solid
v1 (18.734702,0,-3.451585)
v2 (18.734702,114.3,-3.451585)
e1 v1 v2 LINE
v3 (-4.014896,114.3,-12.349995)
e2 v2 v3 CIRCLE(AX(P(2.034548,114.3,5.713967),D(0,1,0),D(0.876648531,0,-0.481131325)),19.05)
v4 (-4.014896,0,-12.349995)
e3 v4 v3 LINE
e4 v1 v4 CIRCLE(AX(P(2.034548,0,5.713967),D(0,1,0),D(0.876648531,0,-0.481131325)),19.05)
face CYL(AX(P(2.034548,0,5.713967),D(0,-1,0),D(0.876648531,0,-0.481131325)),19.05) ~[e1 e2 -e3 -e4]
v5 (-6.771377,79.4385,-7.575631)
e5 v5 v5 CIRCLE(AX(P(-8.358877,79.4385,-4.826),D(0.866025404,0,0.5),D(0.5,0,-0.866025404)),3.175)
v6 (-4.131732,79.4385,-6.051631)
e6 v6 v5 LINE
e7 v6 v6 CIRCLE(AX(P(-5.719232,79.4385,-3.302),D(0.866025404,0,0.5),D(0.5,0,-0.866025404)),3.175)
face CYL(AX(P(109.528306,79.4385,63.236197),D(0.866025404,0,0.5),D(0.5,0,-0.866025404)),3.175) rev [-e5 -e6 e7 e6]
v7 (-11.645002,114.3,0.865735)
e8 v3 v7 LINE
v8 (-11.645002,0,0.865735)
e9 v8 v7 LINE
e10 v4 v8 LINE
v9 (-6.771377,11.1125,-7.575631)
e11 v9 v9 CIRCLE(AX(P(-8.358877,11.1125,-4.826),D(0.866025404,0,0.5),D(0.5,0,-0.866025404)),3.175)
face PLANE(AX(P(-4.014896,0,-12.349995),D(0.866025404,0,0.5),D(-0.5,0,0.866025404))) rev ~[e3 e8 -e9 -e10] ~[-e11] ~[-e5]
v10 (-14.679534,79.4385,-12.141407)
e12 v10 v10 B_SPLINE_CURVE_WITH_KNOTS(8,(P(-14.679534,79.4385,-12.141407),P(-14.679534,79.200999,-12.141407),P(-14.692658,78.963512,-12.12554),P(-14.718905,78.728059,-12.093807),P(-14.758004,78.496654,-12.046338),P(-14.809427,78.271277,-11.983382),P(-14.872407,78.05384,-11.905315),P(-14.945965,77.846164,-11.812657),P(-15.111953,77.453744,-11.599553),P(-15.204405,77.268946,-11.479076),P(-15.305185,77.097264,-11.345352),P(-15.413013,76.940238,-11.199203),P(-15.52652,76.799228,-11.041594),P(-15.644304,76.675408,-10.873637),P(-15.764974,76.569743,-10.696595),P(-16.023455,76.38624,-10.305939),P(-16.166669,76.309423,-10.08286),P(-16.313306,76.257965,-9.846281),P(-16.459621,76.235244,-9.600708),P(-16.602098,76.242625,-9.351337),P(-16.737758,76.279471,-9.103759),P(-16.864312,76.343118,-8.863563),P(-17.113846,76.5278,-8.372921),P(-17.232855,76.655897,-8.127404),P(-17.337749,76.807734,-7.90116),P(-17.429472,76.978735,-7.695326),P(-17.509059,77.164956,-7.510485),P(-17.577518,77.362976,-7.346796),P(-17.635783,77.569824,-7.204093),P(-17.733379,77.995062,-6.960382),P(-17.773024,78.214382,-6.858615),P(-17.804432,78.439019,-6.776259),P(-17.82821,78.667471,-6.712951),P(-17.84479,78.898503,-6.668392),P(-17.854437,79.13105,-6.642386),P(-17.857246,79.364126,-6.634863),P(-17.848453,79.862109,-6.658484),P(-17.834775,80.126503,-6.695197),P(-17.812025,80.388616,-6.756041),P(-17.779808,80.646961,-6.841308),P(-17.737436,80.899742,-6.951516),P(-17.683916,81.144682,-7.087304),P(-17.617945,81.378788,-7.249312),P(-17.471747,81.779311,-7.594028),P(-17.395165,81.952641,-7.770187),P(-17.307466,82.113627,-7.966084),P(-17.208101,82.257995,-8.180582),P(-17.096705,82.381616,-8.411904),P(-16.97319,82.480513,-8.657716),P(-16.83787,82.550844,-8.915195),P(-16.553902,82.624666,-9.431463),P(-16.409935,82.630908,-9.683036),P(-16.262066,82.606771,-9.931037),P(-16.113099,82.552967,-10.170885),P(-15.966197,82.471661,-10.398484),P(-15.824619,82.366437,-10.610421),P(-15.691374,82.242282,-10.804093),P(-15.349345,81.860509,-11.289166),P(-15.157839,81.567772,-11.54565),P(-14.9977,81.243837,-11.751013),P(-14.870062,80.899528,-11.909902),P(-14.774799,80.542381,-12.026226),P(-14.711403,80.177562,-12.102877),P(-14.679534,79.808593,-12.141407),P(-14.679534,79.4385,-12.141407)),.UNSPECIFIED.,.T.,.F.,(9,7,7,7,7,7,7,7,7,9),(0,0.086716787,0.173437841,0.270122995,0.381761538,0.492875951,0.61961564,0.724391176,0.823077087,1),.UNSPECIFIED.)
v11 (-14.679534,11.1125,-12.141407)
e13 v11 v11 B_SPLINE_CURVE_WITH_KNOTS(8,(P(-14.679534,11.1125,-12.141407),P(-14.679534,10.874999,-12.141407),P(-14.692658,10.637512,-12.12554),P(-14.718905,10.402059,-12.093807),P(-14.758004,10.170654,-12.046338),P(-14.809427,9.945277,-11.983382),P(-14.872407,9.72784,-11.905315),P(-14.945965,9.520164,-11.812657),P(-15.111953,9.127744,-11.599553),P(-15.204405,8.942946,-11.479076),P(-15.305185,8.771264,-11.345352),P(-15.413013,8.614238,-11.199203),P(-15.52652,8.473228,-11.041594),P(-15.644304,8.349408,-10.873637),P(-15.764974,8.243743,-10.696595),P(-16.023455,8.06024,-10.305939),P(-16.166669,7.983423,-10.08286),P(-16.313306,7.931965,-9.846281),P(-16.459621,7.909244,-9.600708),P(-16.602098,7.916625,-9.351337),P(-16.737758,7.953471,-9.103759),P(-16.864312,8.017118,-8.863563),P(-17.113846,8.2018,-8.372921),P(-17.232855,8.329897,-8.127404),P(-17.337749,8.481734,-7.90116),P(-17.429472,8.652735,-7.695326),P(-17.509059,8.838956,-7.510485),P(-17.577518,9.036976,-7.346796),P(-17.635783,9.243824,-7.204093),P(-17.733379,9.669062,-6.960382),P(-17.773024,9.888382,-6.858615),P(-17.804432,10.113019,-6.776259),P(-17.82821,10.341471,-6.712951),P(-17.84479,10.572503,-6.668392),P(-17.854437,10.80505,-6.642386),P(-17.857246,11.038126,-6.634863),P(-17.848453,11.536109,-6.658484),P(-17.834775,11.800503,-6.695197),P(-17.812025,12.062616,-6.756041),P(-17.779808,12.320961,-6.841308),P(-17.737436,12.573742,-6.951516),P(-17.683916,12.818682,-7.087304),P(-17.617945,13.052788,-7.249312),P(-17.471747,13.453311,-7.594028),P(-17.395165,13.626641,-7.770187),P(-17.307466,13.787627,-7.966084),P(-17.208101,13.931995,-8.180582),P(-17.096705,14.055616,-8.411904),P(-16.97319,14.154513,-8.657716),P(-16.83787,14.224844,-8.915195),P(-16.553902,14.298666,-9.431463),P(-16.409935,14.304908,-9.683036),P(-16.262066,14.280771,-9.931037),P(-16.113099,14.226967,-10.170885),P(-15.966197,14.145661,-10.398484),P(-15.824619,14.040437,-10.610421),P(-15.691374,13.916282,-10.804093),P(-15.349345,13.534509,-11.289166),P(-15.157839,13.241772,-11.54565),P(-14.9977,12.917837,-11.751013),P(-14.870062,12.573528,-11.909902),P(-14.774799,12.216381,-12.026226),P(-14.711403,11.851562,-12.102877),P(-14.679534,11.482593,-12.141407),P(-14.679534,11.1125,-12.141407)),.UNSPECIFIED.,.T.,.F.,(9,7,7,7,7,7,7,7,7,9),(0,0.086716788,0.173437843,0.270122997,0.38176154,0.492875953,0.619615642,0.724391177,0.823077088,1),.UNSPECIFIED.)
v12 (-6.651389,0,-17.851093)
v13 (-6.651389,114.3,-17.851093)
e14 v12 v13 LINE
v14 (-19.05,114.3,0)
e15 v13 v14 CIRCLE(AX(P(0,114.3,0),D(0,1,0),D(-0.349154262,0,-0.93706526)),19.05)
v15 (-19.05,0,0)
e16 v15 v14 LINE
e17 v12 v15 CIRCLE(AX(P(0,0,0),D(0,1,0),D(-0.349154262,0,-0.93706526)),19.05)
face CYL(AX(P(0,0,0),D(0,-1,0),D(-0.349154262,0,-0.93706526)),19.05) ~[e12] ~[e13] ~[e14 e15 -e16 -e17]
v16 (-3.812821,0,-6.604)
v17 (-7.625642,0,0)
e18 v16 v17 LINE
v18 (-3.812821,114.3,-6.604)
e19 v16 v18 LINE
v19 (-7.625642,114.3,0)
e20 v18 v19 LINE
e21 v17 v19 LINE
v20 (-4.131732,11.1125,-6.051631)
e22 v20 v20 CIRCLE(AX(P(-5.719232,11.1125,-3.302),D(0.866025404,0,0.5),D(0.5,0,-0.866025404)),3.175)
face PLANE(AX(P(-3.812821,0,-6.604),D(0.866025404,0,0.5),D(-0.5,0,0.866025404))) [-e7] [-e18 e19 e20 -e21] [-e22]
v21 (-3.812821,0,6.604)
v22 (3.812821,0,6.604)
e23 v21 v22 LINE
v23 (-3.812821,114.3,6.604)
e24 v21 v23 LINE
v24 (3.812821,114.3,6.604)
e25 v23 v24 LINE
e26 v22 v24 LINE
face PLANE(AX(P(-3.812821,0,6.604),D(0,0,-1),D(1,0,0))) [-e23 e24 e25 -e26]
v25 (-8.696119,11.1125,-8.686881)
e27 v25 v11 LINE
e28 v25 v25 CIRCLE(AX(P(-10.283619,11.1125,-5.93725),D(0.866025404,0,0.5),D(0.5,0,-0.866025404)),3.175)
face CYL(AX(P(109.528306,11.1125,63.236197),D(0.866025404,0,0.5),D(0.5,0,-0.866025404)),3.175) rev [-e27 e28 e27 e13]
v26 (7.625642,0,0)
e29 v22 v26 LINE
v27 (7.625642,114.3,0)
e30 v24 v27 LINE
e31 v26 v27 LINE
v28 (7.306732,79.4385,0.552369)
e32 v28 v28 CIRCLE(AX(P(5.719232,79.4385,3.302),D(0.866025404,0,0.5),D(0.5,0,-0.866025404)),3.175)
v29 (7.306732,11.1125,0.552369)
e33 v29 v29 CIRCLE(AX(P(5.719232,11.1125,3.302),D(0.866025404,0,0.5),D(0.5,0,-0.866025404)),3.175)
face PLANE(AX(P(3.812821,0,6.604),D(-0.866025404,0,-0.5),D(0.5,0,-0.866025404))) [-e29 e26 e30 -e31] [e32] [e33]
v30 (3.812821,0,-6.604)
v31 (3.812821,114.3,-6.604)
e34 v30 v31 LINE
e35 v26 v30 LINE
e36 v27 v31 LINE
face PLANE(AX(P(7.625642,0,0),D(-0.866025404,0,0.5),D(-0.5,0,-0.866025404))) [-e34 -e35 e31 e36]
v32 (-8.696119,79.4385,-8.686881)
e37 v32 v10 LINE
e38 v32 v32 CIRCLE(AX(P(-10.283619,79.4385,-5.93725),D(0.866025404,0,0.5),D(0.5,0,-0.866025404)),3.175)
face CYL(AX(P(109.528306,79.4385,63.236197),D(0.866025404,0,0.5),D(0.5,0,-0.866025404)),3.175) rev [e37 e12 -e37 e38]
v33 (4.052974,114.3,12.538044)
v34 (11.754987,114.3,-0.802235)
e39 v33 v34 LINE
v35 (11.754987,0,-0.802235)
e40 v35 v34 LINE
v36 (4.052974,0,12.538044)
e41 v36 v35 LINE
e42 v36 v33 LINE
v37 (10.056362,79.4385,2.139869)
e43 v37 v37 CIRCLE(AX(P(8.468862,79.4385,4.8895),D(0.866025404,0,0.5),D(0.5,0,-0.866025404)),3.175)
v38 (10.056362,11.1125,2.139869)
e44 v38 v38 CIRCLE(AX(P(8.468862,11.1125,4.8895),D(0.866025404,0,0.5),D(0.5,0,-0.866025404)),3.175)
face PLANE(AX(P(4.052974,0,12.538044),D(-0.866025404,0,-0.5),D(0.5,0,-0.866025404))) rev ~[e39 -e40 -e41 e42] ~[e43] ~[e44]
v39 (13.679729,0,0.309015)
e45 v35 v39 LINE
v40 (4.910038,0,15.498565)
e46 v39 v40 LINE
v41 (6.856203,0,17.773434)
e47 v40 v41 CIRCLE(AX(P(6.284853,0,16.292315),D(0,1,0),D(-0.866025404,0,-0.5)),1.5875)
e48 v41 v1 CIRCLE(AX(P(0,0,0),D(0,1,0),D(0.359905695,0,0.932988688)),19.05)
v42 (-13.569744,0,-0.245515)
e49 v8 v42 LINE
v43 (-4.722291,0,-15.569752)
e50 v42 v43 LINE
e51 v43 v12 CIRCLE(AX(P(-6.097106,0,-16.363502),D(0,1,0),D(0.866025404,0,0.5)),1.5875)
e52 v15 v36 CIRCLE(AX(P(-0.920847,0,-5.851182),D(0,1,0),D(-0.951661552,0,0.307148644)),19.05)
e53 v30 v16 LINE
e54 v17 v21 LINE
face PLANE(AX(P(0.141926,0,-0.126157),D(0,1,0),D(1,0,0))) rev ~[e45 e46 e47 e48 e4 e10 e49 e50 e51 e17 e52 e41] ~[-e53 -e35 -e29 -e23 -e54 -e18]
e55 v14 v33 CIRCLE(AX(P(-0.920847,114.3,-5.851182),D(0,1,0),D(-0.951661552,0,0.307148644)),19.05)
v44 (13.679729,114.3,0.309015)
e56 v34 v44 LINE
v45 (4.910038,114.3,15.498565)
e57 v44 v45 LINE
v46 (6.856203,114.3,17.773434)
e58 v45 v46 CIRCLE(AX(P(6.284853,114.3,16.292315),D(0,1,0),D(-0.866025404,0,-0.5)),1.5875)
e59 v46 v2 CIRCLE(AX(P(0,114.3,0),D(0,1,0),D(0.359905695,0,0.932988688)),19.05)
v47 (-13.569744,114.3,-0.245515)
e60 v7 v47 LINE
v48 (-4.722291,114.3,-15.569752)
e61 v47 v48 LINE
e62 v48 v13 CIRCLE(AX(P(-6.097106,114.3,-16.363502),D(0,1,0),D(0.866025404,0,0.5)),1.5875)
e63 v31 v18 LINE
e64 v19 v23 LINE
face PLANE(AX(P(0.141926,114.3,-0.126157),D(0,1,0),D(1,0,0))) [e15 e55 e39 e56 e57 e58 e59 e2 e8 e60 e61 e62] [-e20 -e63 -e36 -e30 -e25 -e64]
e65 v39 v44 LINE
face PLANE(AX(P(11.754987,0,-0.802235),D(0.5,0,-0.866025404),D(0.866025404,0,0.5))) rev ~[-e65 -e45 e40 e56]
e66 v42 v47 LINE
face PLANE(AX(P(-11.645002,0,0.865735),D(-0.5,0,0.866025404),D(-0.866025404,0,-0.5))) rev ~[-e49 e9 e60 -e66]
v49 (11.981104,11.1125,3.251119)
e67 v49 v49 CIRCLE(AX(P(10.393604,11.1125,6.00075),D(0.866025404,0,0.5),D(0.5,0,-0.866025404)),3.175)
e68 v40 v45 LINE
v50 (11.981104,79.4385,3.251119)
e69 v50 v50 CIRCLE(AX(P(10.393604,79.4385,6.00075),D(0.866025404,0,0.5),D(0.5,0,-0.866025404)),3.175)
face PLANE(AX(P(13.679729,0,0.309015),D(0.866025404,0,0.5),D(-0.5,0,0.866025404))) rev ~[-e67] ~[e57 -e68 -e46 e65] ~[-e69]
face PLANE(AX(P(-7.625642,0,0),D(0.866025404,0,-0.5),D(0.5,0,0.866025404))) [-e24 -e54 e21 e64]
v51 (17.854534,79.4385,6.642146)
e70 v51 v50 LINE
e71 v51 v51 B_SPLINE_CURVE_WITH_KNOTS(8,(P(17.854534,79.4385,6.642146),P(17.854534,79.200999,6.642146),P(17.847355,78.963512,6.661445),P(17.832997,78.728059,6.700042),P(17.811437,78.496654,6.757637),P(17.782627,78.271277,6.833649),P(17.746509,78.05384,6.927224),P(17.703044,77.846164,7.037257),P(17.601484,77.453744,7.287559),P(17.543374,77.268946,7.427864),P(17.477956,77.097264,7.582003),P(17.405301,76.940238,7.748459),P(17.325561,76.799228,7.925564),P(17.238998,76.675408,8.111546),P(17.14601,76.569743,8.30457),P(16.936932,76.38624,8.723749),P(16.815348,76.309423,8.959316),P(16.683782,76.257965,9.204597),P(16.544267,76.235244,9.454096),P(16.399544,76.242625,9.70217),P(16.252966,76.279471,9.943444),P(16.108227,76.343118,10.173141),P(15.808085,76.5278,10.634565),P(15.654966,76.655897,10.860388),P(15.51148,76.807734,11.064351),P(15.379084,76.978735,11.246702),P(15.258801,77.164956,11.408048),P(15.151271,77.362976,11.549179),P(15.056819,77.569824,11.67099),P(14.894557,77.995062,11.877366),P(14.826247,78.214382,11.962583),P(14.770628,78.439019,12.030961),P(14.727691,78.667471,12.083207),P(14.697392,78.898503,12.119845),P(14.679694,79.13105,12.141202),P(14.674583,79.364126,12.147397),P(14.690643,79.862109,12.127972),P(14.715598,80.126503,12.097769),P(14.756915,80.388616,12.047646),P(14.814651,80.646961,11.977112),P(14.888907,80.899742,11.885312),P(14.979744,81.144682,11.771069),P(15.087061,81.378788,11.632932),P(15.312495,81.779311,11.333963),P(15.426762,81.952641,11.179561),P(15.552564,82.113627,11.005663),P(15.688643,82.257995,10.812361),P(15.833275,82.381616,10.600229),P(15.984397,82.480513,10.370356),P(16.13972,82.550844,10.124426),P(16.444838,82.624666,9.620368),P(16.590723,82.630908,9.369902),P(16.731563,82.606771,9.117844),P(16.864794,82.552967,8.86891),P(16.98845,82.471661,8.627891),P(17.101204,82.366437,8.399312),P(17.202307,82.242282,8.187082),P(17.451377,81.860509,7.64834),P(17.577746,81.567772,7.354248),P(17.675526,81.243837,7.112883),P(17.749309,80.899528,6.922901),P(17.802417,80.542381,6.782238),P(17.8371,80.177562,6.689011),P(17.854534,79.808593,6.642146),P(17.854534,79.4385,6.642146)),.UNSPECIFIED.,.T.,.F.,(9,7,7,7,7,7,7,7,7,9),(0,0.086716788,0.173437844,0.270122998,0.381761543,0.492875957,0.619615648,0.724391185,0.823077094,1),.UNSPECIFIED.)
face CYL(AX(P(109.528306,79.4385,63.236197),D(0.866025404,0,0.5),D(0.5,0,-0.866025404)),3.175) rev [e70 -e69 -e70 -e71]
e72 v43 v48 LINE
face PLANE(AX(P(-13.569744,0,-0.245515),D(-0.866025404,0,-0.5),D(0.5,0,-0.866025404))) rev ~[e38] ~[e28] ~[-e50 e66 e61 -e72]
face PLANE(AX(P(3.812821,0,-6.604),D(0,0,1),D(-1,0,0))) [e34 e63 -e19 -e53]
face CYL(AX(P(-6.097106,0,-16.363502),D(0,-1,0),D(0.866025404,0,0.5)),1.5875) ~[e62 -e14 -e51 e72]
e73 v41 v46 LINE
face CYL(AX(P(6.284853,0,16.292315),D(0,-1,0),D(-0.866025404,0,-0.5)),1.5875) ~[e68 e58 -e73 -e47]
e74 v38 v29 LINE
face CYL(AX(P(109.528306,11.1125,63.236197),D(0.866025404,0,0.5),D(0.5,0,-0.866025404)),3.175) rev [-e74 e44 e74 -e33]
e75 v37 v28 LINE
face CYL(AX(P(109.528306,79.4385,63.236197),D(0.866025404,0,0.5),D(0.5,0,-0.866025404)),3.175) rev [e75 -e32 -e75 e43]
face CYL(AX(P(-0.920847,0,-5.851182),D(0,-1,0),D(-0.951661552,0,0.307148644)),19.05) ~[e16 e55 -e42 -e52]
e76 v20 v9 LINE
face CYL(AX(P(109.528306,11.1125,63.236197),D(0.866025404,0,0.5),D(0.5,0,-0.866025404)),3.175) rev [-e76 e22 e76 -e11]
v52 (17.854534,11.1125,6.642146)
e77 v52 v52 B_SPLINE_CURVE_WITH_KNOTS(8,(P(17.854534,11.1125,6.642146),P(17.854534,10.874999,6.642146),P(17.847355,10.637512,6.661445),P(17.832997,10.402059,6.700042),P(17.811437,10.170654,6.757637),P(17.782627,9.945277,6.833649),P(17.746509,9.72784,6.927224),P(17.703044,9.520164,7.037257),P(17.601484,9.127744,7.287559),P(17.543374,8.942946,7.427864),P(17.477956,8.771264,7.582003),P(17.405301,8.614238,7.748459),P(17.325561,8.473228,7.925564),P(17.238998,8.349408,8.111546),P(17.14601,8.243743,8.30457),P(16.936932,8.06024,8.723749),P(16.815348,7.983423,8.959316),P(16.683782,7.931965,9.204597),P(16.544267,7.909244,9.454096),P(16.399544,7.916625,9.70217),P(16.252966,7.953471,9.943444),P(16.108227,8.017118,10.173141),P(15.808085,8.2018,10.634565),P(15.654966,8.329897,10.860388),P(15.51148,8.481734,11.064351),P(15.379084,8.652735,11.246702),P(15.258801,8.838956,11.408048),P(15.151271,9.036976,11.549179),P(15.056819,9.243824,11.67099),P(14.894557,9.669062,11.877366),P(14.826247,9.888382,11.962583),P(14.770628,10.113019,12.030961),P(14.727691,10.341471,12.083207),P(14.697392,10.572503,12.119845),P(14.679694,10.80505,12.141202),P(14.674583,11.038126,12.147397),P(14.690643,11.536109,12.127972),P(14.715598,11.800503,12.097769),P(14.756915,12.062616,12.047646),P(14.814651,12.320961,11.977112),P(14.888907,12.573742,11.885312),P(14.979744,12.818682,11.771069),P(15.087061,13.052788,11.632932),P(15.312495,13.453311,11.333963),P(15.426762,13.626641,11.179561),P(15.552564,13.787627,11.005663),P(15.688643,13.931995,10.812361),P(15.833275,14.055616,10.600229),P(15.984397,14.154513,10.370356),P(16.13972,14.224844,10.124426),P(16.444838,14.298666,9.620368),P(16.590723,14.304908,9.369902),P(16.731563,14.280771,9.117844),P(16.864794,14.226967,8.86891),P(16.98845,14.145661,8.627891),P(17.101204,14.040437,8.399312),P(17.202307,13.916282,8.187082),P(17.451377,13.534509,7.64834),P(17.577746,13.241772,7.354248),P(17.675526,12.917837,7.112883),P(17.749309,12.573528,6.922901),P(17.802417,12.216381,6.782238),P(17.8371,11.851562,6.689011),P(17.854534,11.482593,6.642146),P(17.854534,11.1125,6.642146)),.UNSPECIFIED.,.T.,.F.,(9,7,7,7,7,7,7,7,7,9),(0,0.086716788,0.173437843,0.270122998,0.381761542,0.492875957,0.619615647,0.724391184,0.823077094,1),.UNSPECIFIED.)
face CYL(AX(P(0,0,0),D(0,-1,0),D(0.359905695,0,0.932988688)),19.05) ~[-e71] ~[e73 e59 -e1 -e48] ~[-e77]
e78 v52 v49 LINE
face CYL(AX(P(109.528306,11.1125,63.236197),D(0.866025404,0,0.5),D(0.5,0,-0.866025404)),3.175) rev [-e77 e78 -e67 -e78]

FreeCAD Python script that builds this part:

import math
import FreeCAD as App
import Part
import Sketcher
Q = App.Units.Quantity


def add_polygon(sketch, points):
    """Adds a closed chain of lines whose ends are joined by coincident constraints."""
    first, n = sketch.GeometryCount, len(points)
    for a, b in zip(points, points[1:] + points[:1]):
        sketch.addGeometry(Part.LineSegment(App.Vector(*a, 0), App.Vector(*b, 0)), False)
    for i in range(n):
        sketch.addConstraint(Sketcher.Constraint("Coincident", first + i, 2, first + (i + 1) % n, 1))

doc = App.newDocument("Part")
body = doc.addObject("PartDesign::Body", "Body")

# Sketch on XZ plane
sketch1 = body.newObject("Sketcher::SketchObject", "Sketch")
sketch1.AttachmentSupport = (doc.getObject("XZ_Plane"), [""])
sketch1.MapMode = "FlatFace"
sketch1.addGeometry(Part.LineSegment(App.Vector(4.1, 12.5, 0), App.Vector(11.8, -0.8, 0)), False)  # 0
sketch1.addGeometry(Part.LineSegment(App.Vector(11.8, -0.8, 0), App.Vector(13.7, 0.3, 0)), False)  # 1
sketch1.addGeometry(Part.LineSegment(App.Vector(13.7, 0.3, 0), App.Vector(4.9, 15.5, 0)), False)  # 2
sketch1.addGeometry(Part.ArcOfCircle(Part.Circle(App.Vector(6.3, 16.3, 0), App.Vector(0, 0, 1), 1.6), math.radians(69), math.radians(210)), False)  # 3
sketch1.addGeometry(Part.ArcOfCircle(Part.Circle(App.Vector(0, 0, 0), App.Vector(0, 0, 1), 19.1), math.radians(-10), math.radians(69)), False)  # 4
sketch1.addGeometry(Part.ArcOfCircle(Part.Circle(App.Vector(2, 5.7, 0), App.Vector(0, 0, 1), 19), math.radians(-109), math.radians(-29)), False)  # 5
sketch1.addGeometry(Part.LineSegment(App.Vector(-4, -12.3, 0), App.Vector(-11.6, 0.9, 0)), False)  # 6
sketch1.addGeometry(Part.LineSegment(App.Vector(-11.6, 0.9, 0), App.Vector(-13.6, -0.2, 0)), False)  # 7
sketch1.addGeometry(Part.LineSegment(App.Vector(-13.6, -0.2, 0), App.Vector(-4.7, -15.6, 0)), False)  # 8
sketch1.addGeometry(Part.ArcOfCircle(Part.Circle(App.Vector(-6.1, -16.4, 0), App.Vector(0, 0, 1), 1.6), math.radians(-110), math.radians(30)), False)  # 9
sketch1.addGeometry(Part.ArcOfCircle(Part.Circle(App.Vector(0, 0, 0), App.Vector(0, 0, 1), 19.1), math.radians(-180), math.radians(-110)), False)  # 10
sketch1.addGeometry(Part.ArcOfCircle(Part.Circle(App.Vector(-0.9, -5.9, 0), App.Vector(0, 0, 1), 19), math.radians(75), math.radians(162)), False)  # 11
add_polygon(sketch1, [(7.6, 0), (3.8, 6.6), (-3.8, 6.6), (-7.6, 0), (-3.8, -6.6), (3.8, -6.6)])  # lines 12-17
sketch1.addConstraint(Sketcher.Constraint("Coincident", 0, 2, 1, 1))
sketch1.addConstraint(Sketcher.Constraint("Coincident", 1, 2, 2, 1))
sketch1.addConstraint(Sketcher.Constraint("Tangent", 2, 2, 3, 2))
sketch1.addConstraint(Sketcher.Constraint("Tangent", 3, 1, 4, 2))
sketch1.addConstraint(Sketcher.Constraint("Coincident", 4, 1, 5, 2))
sketch1.addConstraint(Sketcher.Constraint("Coincident", 5, 1, 6, 1))
sketch1.addConstraint(Sketcher.Constraint("Coincident", 6, 2, 7, 1))
sketch1.addConstraint(Sketcher.Constraint("Coincident", 7, 2, 8, 1))
sketch1.addConstraint(Sketcher.Constraint("Tangent", 8, 2, 9, 2))
sketch1.addConstraint(Sketcher.Constraint("Tangent", 9, 1, 10, 2))
sketch1.addConstraint(Sketcher.Constraint("Coincident", 10, 1, 11, 2))
sketch1.addConstraint(Sketcher.Constraint("Coincident", 11, 1, 0, 1))
sketch1.addConstraint(Sketcher.Constraint("Horizontal", 13))
sketch1.addConstraint(Sketcher.Constraint("Horizontal", 16))
sketch1.addConstraint(Sketcher.Constraint("Coincident", 4, 3, -1, 1))
sketch1.addConstraint(Sketcher.Constraint("Coincident", 10, 3, -1, 1))
sketch1.addConstraint(Sketcher.Constraint("Equal", 4, 5))
sketch1.addConstraint(Sketcher.Constraint("Equal", 3, 9))
sketch1.addConstraint(Sketcher.Constraint("Equal", 5, 10))
sketch1.addConstraint(Sketcher.Constraint("Equal", 10, 11))
sketch1.addConstraint(Sketcher.Constraint("Symmetric", 12, 2, 15, 2, -1, 1))
sketch1.addConstraint(Sketcher.Constraint("Symmetric", 14, 2, 17, 2, -1, 1))
sketch1.addConstraint(Sketcher.Constraint("PointOnObject", 10, 1, -1))
sketch1.addConstraint(Sketcher.Constraint("PointOnObject", 14, 2, -1))
sketch1.addConstraint(Sketcher.Constraint("Perpendicular", 0, 1))
sketch1.addConstraint(Sketcher.Constraint("Perpendicular", 1, 2))
sketch1.addConstraint(Sketcher.Constraint("Parallel", 2, 6))
sketch1.addConstraint(Sketcher.Constraint("Perpendicular", 6, 7))
sketch1.addConstraint(Sketcher.Constraint("Perpendicular", 7, 8))
sketch1.addConstraint(Sketcher.Constraint("Parallel", 8, 12))
sketch1.addConstraint(Sketcher.Constraint("Parallel", 14, 17))
sketch1.addConstraint(Sketcher.Constraint("Vertical", 13, 2, 15, 2))
sketch1.addConstraint(Sketcher.Constraint("Equal", 1, 7))
sketch1.addConstraint(Sketcher.Constraint("Radius", 4, Q("0.75 in")))
sketch1.addConstraint(Sketcher.Constraint("Angle", 0, Q("-60 deg")))
sketch1.addConstraint(Sketcher.Constraint("Radius", 3, Q("0.0625 in")))
sketch1.addConstraint(Sketcher.Constraint("DistanceY", -1, 1, 12, 2, Q("0.26 in")))
sketch1.addConstraint(Sketcher.Constraint("Distance", 1, Q("0.0875 in")))
sketch1.addConstraint(Sketcher.Constraint("DistanceX", 11, 3, 3, 3, Q("7.205701 mm")))
sketch1.addConstraint(Sketcher.Constraint("DistanceY", 5, 3, 2, 2, Q("9.784598 mm")))
sketch1.addConstraint(Sketcher.Constraint("DistanceY", 4, 1, 1, 2, Q("3.7606 mm")))
sketch1.addConstraint(Sketcher.Constraint("DistanceX", 7, 2, 14, 2, Q("5.944101 mm")))
sketch1.addConstraint(Sketcher.Constraint("Distance", 6, Q("15.260212 mm")))
sketch1.addConstraint(Sketcher.Constraint("DistanceX", 13, 2, 13, 1, Q("7.625642 mm")))
sketch1.addConstraint(Sketcher.Constraint("DistanceY", 11, 3, -1, 1, Q("5.851182 mm")))
sketch1.addConstraint(Sketcher.Constraint("DistanceX", -1, 1, 1, 2, Q("13.679729 mm")))
pad1 = body.newObject("PartDesign::Pad", "Pad")
pad1.Profile = sketch1
pad1.Length = Q("4.5 in")
pad1.Reversed = True

# Sketch on an angled plane
sketch2 = body.newObject("Sketcher::SketchObject", "Sketch001")
sketch2.Placement = App.Placement(App.Vector(5.719232, 0, 3.302), App.Rotation(App.Vector(-0.5, 0, 0.866025404), App.Vector(0, 1, 0), App.Vector(-0.866025404, 0, -0.5), "ZXY"))
sketch2.addGeometry(Part.Circle(App.Vector(0, 11.1, 0), App.Vector(0, 0, 1), 3.2), False)
sketch2.addGeometry(Part.Circle(App.Vector(0, 79.4, 0), App.Vector(0, 0, 1), 3.2), False)
sketch2.addConstraint(Sketcher.Constraint("Equal", 0, 1))
sketch2.addConstraint(Sketcher.Constraint("PointOnObject", 0, 3, -2))
sketch2.addConstraint(Sketcher.Constraint("PointOnObject", 1, 3, -2))
sketch2.addConstraint(Sketcher.Constraint("Diameter", 0, Q("0.25 in")))
sketch2.addConstraint(Sketcher.Constraint("DistanceY", 0, 3, 1, 3, Q("2.69 in")))
sketch2.addConstraint(Sketcher.Constraint("DistanceY", -1, 1, 0, 3, Q("0.4375 in")))
pocket1 = body.newObject("PartDesign::Pocket", "Pocket")
pocket1.Profile = sketch2
pocket1.Type = "ThroughAll"
pocket1.Midplane = True

doc.recompute()
